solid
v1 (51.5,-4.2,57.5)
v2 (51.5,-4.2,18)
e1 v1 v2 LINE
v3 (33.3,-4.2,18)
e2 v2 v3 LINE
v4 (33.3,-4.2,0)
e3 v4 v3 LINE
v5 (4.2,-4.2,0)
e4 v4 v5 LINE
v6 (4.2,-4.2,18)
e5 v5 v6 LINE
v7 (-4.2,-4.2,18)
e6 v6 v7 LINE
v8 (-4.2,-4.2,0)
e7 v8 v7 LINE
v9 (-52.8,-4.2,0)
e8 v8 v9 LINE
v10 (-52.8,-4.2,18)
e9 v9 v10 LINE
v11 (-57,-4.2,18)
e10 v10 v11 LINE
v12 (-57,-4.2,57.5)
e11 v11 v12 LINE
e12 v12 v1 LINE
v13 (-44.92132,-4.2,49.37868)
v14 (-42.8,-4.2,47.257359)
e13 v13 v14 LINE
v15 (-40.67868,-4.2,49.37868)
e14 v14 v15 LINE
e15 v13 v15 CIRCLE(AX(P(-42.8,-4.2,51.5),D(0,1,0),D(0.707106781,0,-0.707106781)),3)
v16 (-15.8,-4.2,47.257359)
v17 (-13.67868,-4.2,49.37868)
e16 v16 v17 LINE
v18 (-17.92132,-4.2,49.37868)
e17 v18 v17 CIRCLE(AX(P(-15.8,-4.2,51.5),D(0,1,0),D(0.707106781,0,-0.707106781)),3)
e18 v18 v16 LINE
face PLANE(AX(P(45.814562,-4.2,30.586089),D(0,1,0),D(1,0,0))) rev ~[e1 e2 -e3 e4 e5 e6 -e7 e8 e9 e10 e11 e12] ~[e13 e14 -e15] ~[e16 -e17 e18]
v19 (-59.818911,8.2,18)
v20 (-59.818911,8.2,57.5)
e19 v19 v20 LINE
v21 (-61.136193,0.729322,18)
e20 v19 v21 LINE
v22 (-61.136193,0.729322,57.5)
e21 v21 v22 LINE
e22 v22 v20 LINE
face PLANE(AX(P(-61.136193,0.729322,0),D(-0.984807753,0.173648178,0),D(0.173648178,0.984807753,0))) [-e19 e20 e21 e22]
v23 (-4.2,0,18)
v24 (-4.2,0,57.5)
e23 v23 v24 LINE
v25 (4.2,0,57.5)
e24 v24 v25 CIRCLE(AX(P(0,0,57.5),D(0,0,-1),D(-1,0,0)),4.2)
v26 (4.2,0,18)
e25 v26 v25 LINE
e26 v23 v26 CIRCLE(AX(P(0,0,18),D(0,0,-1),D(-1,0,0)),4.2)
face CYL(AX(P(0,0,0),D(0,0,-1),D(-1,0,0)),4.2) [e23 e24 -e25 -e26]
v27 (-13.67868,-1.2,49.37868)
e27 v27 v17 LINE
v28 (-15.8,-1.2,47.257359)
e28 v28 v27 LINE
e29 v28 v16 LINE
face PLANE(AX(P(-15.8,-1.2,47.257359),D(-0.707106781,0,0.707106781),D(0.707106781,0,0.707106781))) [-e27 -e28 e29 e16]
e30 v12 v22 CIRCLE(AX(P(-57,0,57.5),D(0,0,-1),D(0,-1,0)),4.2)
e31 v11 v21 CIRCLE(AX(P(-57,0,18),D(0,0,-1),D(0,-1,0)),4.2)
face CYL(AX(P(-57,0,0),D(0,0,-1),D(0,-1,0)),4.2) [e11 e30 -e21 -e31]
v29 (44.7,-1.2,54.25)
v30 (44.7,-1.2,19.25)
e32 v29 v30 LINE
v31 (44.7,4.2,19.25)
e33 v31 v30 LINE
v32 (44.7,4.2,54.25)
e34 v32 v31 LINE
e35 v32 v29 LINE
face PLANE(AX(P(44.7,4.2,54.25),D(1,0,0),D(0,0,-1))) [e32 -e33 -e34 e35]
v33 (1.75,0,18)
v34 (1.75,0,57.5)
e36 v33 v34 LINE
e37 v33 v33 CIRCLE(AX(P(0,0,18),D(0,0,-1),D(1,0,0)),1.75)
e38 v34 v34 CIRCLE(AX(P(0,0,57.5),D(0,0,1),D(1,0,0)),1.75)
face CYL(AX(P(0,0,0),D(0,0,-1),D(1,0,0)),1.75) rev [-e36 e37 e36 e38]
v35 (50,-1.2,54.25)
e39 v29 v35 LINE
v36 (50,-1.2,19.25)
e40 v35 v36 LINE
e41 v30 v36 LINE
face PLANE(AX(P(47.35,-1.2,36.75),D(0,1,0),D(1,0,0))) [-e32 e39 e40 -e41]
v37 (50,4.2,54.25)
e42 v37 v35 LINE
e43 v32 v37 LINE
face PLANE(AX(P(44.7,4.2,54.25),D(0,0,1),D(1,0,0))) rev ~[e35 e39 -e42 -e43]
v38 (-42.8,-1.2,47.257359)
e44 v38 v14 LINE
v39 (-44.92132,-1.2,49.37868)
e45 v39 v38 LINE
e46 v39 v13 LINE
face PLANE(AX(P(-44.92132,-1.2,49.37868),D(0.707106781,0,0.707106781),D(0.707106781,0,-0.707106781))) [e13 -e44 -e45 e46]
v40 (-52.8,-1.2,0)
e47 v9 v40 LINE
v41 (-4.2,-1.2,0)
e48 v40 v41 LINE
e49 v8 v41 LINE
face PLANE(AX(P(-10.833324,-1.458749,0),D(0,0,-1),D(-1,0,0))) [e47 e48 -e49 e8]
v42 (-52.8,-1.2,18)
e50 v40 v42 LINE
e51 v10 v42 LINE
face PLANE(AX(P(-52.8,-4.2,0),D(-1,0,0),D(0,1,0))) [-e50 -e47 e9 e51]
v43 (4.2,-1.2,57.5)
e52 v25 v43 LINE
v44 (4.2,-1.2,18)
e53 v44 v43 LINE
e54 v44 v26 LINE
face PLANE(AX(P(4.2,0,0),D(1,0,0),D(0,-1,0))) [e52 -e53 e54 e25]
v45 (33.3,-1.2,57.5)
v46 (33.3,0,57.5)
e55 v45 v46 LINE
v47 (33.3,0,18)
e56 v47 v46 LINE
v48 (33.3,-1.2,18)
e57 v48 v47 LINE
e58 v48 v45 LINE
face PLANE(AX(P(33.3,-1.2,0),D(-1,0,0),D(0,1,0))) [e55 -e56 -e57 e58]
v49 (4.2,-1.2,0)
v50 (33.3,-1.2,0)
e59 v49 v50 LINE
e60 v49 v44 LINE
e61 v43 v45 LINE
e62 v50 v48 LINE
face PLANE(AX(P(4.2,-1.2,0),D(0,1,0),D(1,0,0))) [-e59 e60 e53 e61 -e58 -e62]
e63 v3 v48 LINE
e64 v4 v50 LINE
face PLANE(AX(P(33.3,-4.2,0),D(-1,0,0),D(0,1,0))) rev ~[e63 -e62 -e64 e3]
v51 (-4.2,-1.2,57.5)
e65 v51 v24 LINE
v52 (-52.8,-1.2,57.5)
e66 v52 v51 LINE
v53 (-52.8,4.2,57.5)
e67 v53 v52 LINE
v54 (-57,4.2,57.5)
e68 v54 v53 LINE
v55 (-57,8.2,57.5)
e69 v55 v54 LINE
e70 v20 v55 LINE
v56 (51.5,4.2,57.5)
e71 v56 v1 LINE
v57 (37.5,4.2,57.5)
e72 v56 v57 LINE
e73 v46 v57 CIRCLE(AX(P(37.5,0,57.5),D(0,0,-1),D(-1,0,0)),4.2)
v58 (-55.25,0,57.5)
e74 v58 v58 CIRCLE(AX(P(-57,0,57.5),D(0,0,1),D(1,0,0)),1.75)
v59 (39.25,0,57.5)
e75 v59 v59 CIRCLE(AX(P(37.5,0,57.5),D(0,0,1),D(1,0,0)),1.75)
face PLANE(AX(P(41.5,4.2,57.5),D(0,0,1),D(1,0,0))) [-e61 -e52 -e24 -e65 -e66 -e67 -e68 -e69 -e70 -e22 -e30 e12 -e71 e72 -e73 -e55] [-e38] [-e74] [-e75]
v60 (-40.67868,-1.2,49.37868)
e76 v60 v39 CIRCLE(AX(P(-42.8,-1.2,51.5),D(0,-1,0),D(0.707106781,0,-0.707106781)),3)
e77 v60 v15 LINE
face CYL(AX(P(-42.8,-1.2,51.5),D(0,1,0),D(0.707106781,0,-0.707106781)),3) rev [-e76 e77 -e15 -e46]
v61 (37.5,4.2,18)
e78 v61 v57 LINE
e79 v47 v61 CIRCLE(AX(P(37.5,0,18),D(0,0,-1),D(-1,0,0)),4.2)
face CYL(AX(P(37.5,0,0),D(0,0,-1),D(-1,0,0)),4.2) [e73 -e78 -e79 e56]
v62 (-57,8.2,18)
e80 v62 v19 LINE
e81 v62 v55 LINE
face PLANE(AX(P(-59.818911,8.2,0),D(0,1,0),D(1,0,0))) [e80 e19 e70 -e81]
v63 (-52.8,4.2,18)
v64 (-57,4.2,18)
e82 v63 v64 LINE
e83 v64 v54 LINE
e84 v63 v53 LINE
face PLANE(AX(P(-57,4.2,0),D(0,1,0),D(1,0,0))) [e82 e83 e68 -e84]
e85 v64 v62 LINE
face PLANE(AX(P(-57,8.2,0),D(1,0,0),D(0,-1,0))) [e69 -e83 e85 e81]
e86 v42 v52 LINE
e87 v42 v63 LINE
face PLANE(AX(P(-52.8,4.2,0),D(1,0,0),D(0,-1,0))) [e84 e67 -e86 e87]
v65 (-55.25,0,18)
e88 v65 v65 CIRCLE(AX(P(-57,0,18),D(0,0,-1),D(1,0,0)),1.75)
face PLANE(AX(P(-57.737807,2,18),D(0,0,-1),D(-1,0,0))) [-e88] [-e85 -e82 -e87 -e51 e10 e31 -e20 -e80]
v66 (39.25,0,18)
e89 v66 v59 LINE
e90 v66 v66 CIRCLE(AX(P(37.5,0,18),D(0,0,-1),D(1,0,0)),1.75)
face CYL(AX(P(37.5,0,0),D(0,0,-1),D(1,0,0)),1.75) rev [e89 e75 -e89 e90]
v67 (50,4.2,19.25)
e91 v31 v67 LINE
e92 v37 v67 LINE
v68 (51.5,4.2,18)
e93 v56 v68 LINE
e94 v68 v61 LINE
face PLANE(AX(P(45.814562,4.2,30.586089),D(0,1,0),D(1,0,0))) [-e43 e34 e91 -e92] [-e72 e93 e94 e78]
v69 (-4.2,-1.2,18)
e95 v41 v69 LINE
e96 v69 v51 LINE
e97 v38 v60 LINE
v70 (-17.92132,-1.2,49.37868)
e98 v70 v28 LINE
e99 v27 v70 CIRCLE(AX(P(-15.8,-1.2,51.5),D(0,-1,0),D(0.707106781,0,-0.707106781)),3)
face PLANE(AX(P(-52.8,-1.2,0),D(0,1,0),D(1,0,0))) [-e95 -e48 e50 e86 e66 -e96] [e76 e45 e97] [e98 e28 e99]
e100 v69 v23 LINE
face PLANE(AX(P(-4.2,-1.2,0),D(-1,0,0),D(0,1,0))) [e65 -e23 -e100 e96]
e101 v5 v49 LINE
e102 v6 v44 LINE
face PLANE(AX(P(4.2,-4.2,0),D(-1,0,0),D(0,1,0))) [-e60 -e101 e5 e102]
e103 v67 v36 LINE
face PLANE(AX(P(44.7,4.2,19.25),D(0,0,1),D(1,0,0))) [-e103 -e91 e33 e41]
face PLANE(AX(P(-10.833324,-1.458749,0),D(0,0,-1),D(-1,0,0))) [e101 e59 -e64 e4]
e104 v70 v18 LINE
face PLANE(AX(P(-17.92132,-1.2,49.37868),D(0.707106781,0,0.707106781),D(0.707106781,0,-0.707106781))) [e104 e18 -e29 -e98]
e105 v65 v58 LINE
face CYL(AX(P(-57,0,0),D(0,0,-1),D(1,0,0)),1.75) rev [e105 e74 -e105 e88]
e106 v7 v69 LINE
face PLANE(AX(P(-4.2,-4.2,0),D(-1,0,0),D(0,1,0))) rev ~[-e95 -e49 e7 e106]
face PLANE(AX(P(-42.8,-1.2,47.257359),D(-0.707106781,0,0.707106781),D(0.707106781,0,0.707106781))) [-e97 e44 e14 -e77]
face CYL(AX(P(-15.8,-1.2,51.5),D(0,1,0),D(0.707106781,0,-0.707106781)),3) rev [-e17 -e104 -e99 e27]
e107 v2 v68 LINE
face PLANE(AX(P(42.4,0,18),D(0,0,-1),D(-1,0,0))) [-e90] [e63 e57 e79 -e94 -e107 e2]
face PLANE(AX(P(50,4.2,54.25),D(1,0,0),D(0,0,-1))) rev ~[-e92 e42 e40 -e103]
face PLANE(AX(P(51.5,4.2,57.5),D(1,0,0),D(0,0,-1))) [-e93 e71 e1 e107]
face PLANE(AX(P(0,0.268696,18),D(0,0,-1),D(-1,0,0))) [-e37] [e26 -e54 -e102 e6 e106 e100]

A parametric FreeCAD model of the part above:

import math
import FreeCAD as App
import Part
import Sketcher
from FreeCAD import Vector
Q = App.Units.Quantity


def add_polygon(sketch, points):
    """Adds a closed chain of lines whose ends are joined by coincident constraints."""
    first, n = sketch.GeometryCount, len(points)
    for a, b in zip(points, points[1:] + points[:1]):
        sketch.addGeometry(Part.LineSegment(App.Vector(*a, 0), App.Vector(*b, 0)), False)
    for i in range(n):
        sketch.addConstraint(Sketcher.Constraint("Coincident", first + i, 2, first + (i + 1) % n, 1))

doc = App.newDocument("Part")
body = doc.addObject("PartDesign::Body", "Body")

# Sketch on XY plane
sketch1 = body.newObject("Sketcher::SketchObject", "Sketch")
sketch1.AttachmentSupport = (doc.getObject("XY_Plane"), [""])
sketch1.MapMode = "FlatFace"
sketch1.addGeometry(Part.LineSegment(Vector(-4.2, -1.2, 0), Vector(-52.8, -1.2, 0)), False)
sketch1.addGeometry(Part.LineSegment(Vector(-52.8, -1.2, 0), Vector(-52.8, 4.2, 0)), False)
sketch1.addGeometry(Part.LineSegment(Vector(-52.8, 4.2, 0), Vector(-57, 4.2, 0)), False)
sketch1.addGeometry(Part.LineSegment(Vector(-57, 4.2, 0), Vector(-57, 8.2, 0)), False)
sketch1.addGeometry(Part.LineSegment(Vector(-57, 8.2, 0), Vector(-59.8, 8.2, 0)), False)
sketch1.addGeometry(Part.LineSegment(Vector(-59.8, 8.2, 0), Vector(-61.1, 0.7, 0)), False)
sketch1.addGeometry(Part.ArcOfCircle(Part.Circle(Vector(-57, 0, 0), Vector(0, 0, 1), 4.2), math.radians(170), math.radians(270)), False)
sketch1.addGeometry(Part.LineSegment(Vector(-57, -4.2, 0), Vector(41.5, -4.2, 0)), False)
sketch1.addGeometry(Part.LineSegment(Vector(41.5, -4.2, 0), Vector(41.5, 4.2, 0)), False)
sketch1.addGeometry(Part.LineSegment(Vector(41.5, 4.2, 0), Vector(37.5, 4.2, 0)), False)
sketch1.addGeometry(Part.ArcOfCircle(Part.Circle(Vector(37.5, 0, 0), Vector(0, 0, 1), 4.2), math.radians(90), math.radians(180)), False)
sketch1.addGeometry(Part.LineSegment(Vector(33.3, 0, 0), Vector(33.3, -1.2, 0)), False)
sketch1.addGeometry(Part.LineSegment(Vector(33.3, -1.2, 0), Vector(4.2, -1.2, 0)), False)
sketch1.addGeometry(Part.LineSegment(Vector(4.2, -1.2, 0), Vector(4.2, 0, 0)), False)
sketch1.addGeometry(Part.ArcOfCircle(Part.Circle(Vector(0, 0, 0), Vector(0, 0, 1), 4.2), math.radians(0), math.radians(180)), False)
sketch1.addGeometry(Part.LineSegment(Vector(-4.2, 0, 0), Vector(-4.2, -1.2, 0)), False)
sketch1.addGeometry(Part.Circle(Vector(37.5, 0, 0), Vector(0, 0, 1), 1.8), False)
sketch1.addGeometry(Part.Circle(Vector(0, 0, 0), Vector(0, 0, 1), 1.8), False)
sketch1.addGeometry(Part.Circle(Vector(-57, 0, 0), Vector(0, 0, 1), 1.8), False)
sketch1.addConstraint(Sketcher.Constraint("Coincident", 0, 2, 1, 1))
sketch1.addConstraint(Sketcher.Constraint("Coincident", 1, 2, 2, 1))
sketch1.addConstraint(Sketcher.Constraint("Coincident", 2, 2, 3, 1))
sketch1.addConstraint(Sketcher.Constraint("Coincident", 3, 2, 4, 1))
sketch1.addConstraint(Sketcher.Constraint("Coincident", 4, 2, 5, 1))
sketch1.addConstraint(Sketcher.Constraint("Tangent", 5, 2, 6, 1))
sketch1.addConstraint(Sketcher.Constraint("Tangent", 6, 2, 7, 1))
sketch1.addConstraint(Sketcher.Constraint("Coincident", 7, 2, 8, 1))
sketch1.addConstraint(Sketcher.Constraint("Coincident", 8, 2, 9, 1))
sketch1.addConstraint(Sketcher.Constraint("Tangent", 9, 2, 10, 1))
sketch1.addConstraint(Sketcher.Constraint("Tangent", 10, 2, 11, 1))
sketch1.addConstraint(Sketcher.Constraint("Coincident", 11, 2, 12, 1))
sketch1.addConstraint(Sketcher.Constraint("Coincident", 12, 2, 13, 1))
sketch1.addConstraint(Sketcher.Constraint("Tangent", 13, 2, 14, 1))
sketch1.addConstraint(Sketcher.Constraint("Tangent", 14, 2, 15, 1))
sketch1.addConstraint(Sketcher.Constraint("Coincident", 15, 2, 0, 1))
sketch1.addConstraint(Sketcher.Constraint("Horizontal", 0))
sketch1.addConstraint(Sketcher.Constraint("Vertical", 1))
sketch1.addConstraint(Sketcher.Constraint("Horizontal", 2))
sketch1.addConstraint(Sketcher.Constraint("Vertical", 3))
sketch1.addConstraint(Sketcher.Constraint("Horizontal", 4))
sketch1.addConstraint(Sketcher.Constraint("Horizontal", 7))
sketch1.addConstraint(Sketcher.Constraint("Vertical", 8))
sketch1.addConstraint(Sketcher.Constraint("Horizontal", 9))
sketch1.addConstraint(Sketcher.Constraint("Vertical", 11))
sketch1.addConstraint(Sketcher.Constraint("Horizontal", 12))
sketch1.addConstraint(Sketcher.Constraint("Vertical", 13))
sketch1.addConstraint(Sketcher.Constraint("Vertical", 15))
sketch1.addConstraint(Sketcher.Constraint("Coincident", 14, 3, -1, 1))
sketch1.addConstraint(Sketcher.Constraint("Coincident", 17, 3, -1, 1))
sketch1.addConstraint(Sketcher.Constraint("Coincident", 16, 3, 10, 3))
sketch1.addConstraint(Sketcher.Constraint("Coincident", 18, 3, 6, 3))
sketch1.addConstraint(Sketcher.Constraint("Equal", 6, 10))
sketch1.addConstraint(Sketcher.Constraint("Equal", 10, 14))
sketch1.addConstraint(Sketcher.Constraint("Equal", 16, 17))
sketch1.addConstraint(Sketcher.Constraint("Equal", 17, 18))
sketch1.addConstraint(Sketcher.Constraint("Symmetric", 2, 2, 6, 2, -1))
sketch1.addConstraint(Sketcher.Constraint("PointOnObject", 6, 3, -1))
sketch1.addConstraint(Sketcher.Constraint("PointOnObject", 10, 3, -1))
sketch1.addConstraint(Sketcher.Constraint("Horizontal", 0, 2, 11, 2))
sketch1.addConstraint(Sketcher.Constraint("Equal", 9, 3))
sketch1.addConstraint(Sketcher.Constraint("Diameter", 16, Q("3.5 mm")))
sketch1.addConstraint(Sketcher.Constraint("Radius", 6, Q("4.2 mm")))
sketch1.addConstraint(Sketcher.Constraint("DistanceX", 9, 2, 9, 1, Q("4 mm")))
sketch1.addConstraint(Sketcher.Constraint("Angle", 5, Q("-100 deg")))
sketch1.addConstraint(Sketcher.Constraint("DistanceX", 0, 2, 0, 1, Q("48.6 mm")))
sketch1.addConstraint(Sketcher.Constraint("DistanceX", 2, 2, 2, 1, Q("4.2 mm")))
sketch1.addConstraint(Sketcher.Constraint("DistanceX", 7, 1, 7, 2, Q("98.5 mm")))
sketch1.addConstraint(Sketcher.Constraint("DistanceY", 1, 1, 1, 2, Q("5.4 mm")))
pad1 = body.newObject("PartDesign::Pad", "Pad")
pad1.Profile = sketch1
pad1.Length = 57.5

# Sketch on XZ plane
sketch2 = body.newObject("Sketcher::SketchObject", "Sketch001")
sketch2.AttachmentSupport = (doc.getObject("XZ_Plane"), [""])
sketch2.MapMode = "FlatFace"
sketch2.AttachmentOffset = App.Placement(Vector(0, 0, -4.2), App.Rotation())
add_polygon(sketch2, [(42, 58), (52, 58), (52, 18), (42, 0)])  # lines 0-3
sketch2.addConstraint(Sketcher.Constraint("Horizontal", 0))
sketch2.addConstraint(Sketcher.Constraint("Vertical", 1))
sketch2.addConstraint(Sketcher.Constraint("Vertical", 3))
sketch2.addConstraint(Sketcher.Constraint("PointOnObject", 2, 2, -1))
sketch2.addConstraint(Sketcher.Constraint("DistanceX", 0, 1, 0, 2, Q("10 mm")))
sketch2.addConstraint(Sketcher.Constraint("DistanceY", 1, 2, 1, 1, Q("40 mm")))
sketch2.addConstraint(Sketcher.Constraint("DistanceY", 3, 1, 3, 2, Q("57.5 mm")))
sketch2.addConstraint(Sketcher.Constraint("DistanceX", -1, 1, 0, 2, Q("51.5 mm")))
pad2 = body.newObject("PartDesign::Pad", "Pad001")
pad2.Profile = sketch2
pad2.Length = 8.4

# Sketch on XZ plane
sketch3 = body.newObject("Sketcher::SketchObject", "Sketch002")
sketch3.AttachmentSupport = (doc.getObject("XZ_Plane"), [""])
sketch3.MapMode = "FlatFace"
sketch3.AttachmentOffset = App.Placement(Vector(0, 0, -4.2), App.Rotation())
add_polygon(sketch3, [(45, 19), (45, 54), (50, 54), (50, 19)])  # lines 0-3
sketch3.addConstraint(Sketcher.Constraint("Vertical", 0))
sketch3.addConstraint(Sketcher.Constraint("Horizontal", 1))
sketch3.addConstraint(Sketcher.Constraint("Vertical", 2))
sketch3.addConstraint(Sketcher.Constraint("Horizontal", 3))
sketch3.addConstraint(Sketcher.Constraint("DistanceY", 0, 1, 0, 2, Q("35 mm")))
sketch3.addConstraint(Sketcher.Constraint("DistanceX", 1, 1, 1, 2, Q("5.3 mm")))
sketch3.addConstraint(Sketcher.Constraint("DistanceX", -1, 1, 1, 2, Q("50 mm")))
sketch3.addConstraint(Sketcher.Constraint("DistanceY", -1, 1, 0, 2, Q("54.25 mm")))
pocket1 = body.newObject("PartDesign::Pocket", "Pocket")
pocket1.Profile = sketch3
pocket1.Length = 5.4
pocket1.Reversed = True

# Sketch on XZ plane
sketch4 = body.newObject("Sketcher::SketchObject", "Sketch003")
sketch4.AttachmentSupport = (doc.getObject("XZ_Plane"), [""])
sketch4.MapMode = "FlatFace"
sketch4.AttachmentOffset = App.Placement(Vector(0, 0, 1.2), App.Rotation())
sketch4.addGeometry(Part.LineSegment(Vector(-42.8, 47.3, 0), Vector(-44.9, 49.4, 0)), False)
sketch4.addGeometry(Part.ArcOfCircle(Part.Circle(Vector(-42.8, 51.5, 0), Vector(0, 0, 1), 3), math.radians(-45), math.radians(225)), False)
sketch4.addGeometry(Part.LineSegment(Vector(-40.7, 49.4, 0), Vector(-42.8, 47.3, 0)), False)
sketch4.addConstraint(Sketcher.Constraint("Tangent", 0, 2, 1, 2))
sketch4.addConstraint(Sketcher.Constraint("Tangent", 1, 1, 2, 1))
sketch4.addConstraint(Sketcher.Constraint("Coincident", 2, 2, 0, 1))
sketch4.addConstraint(Sketcher.Constraint("Perpendicular", 0, 2))
sketch4.addConstraint(Sketcher.Constraint("Horizontal", 0, 2, 1, 1))
sketch4.addConstraint(Sketcher.Constraint("Radius", 1, Q("3 mm")))
sketch4.addConstraint(Sketcher.Constraint("DistanceX", 1, 3, -1, 1, Q("42.8 mm")))
sketch4.addConstraint(Sketcher.Constraint("DistanceY", -1, 1, 1, 3, Q("51.5 mm")))
pocket2 = body.newObject("PartDesign::Pocket", "Pocket001")
pocket2.Profile = sketch4
pocket2.Type = "ThroughAll"
pocket2.Reversed = True

# Sketch on XY plane
sketch5 = body.newObject("Sketcher::SketchObject", "Sketch004")
sketch5.AttachmentSupport = (doc.getObject("XY_Plane"), [""])
sketch5.MapMode = "FlatFace"
add_polygon(sketch5, [(52, 4), (52, -4), (33, -4), (33, 4)])  # lines 0-3
add_polygon(sketch5, [(4, 5), (4, -4), (-4, -4), (-4, 5)])  # lines 4-7
add_polygon(sketch5, [(-53, 8), (-53, -4), (-63, -4), (-63, 8)])  # lines 8-11
sketch5.addConstraint(Sketcher.Constraint("Vertical", 0))
sketch5.addConstraint(Sketcher.Constraint("Horizontal", 1))
sketch5.addConstraint(Sketcher.Constraint("Vertical", 2))
sketch5.addConstraint(Sketcher.Constraint("Horizontal", 3))
sketch5.addConstraint(Sketcher.Constraint("Vertical", 4))
sketch5.addConstraint(Sketcher.Constraint("Horizontal", 5))
sketch5.addConstraint(Sketcher.Constraint("Vertical", 6))
sketch5.addConstraint(Sketcher.Constraint("Horizontal", 7))
sketch5.addConstraint(Sketcher.Constraint("Vertical", 8))
sketch5.addConstraint(Sketcher.Constraint("Horizontal", 9))
sketch5.addConstraint(Sketcher.Constraint("Vertical", 10))
sketch5.addConstraint(Sketcher.Constraint("Horizontal", 11))
sketch5.addConstraint(Sketcher.Constraint("Horizontal", 1, 2, 4, 2))
sketch5.addConstraint(Sketcher.Constraint("Horizontal", 5, 2, 8, 2))
sketch5.addConstraint(Sketcher.Constraint("Equal", 7, 0))
sketch5.addConstraint(Sketcher.Constraint("DistanceX", 1, 2, 1, 1, Q("18.2 mm")))
sketch5.addConstraint(Sketcher.Constraint("DistanceX", 5, 2, 5, 1, Q("8.4 mm")))
sketch5.addConstraint(Sketcher.Constraint("DistanceY", 8, 2, 8, 1, Q("12.4 mm")))
sketch5.addConstraint(Sketcher.Constraint("DistanceX", 8, 2, 4, 2, Q("57 mm")))
sketch5.addConstraint(Sketcher.Constraint("DistanceX", -1, 1, 0, 2, Q("51.5 mm")))
sketch5.addConstraint(Sketcher.Constraint("DistanceY", 0, 2, -1, 1, Q("4.2 mm")))
sketch5.addConstraint(Sketcher.Constraint("DistanceX", -1, 1, 4, 2, Q("4.2 mm")))
sketch5.addConstraint(Sketcher.Constraint("DistanceX", 9, 2, 9, 1, Q("9.875614 mm")))
sketch5.addConstraint(Sketcher.Constraint("DistanceY", 4, 2, 4, 1, Q("8.937392 mm")))
pocket3 = body.newObject("PartDesign::Pocket", "Pocket002")
pocket3.Profile = sketch5
pocket3.Length = 18
pocket3.Reversed = True
doc.recompute()

linearpattern = body.newObject("PartDesign::LinearPattern", "LinearPattern")
linearpattern.Originals = [pocket2]
linearpattern.Direction = (doc.getObject("X_Axis"), [""])
linearpattern.Mode = "offset"
linearpattern.Offset = 27
linearpattern.Occurrences = 2
body.Tip = linearpattern

doc.recompute()
